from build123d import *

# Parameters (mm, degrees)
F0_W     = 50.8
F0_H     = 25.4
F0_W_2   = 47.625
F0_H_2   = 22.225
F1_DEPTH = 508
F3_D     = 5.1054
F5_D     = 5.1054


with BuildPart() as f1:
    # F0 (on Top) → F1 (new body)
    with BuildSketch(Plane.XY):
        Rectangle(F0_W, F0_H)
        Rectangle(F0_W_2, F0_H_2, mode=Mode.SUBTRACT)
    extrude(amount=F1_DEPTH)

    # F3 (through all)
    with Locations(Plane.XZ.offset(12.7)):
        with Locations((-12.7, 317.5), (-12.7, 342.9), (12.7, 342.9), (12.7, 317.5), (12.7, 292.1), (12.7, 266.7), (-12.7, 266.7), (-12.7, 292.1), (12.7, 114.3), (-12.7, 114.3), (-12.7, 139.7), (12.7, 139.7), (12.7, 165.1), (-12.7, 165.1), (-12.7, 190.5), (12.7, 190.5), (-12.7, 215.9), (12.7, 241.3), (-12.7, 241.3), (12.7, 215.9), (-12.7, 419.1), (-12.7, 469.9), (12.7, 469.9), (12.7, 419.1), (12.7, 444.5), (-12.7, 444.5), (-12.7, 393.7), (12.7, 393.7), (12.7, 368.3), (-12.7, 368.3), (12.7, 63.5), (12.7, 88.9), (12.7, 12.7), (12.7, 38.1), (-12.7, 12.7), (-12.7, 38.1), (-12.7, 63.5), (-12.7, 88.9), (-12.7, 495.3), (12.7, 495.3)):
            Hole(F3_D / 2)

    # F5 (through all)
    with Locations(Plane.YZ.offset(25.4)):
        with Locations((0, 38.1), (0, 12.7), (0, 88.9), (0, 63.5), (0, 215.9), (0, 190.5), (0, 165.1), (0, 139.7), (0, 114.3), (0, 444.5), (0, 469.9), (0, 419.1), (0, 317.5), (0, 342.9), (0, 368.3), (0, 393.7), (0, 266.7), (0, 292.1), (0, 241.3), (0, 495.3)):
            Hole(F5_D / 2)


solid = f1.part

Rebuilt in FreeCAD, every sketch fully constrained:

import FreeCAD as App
import Part
import Sketcher
Q = App.Units.Quantity


def add_polygon(sketch, points):
    """Adds a closed chain of lines whose ends are joined by coincident constraints."""
    first, n = sketch.GeometryCount, len(points)
    for a, b in zip(points, points[1:] + points[:1]):
        sketch.addGeometry(Part.LineSegment(App.Vector(*a, 0), App.Vector(*b, 0)), False)
    for i in range(n):
        sketch.addConstraint(Sketcher.Constraint("Coincident", first + i, 2, first + (i + 1) % n, 1))

doc = App.newDocument("Part")
params = doc.addObject("Spreadsheet::Sheet", "Params")
for row, (alias, value) in enumerate([
    ("sketch1_width", "2 in"),
    ("sketch1_height", "1 in"),
    ("sketch1_width2", "1.875 in"),
    ("sketch1_height2", "0.875 in"),
    ("pad1_length", "20 in"),
    ("sketch2_diameter", "0.201 in"),
    ("hole_diameter", "0.201 in"),
    ("sketch3_diameter", "0.201 in"),
    ("hole2_diameter", "0.201 in"),
], start=1):
    params.set(f"A{row}", alias)
    params.set(f"B{row}", "=" + value)
    params.setAlias(f"B{row}", alias)

body = doc.addObject("PartDesign::Body", "Body")

# Sketch on XY plane
sketch1 = body.newObject("Sketcher::SketchObject", "Sketch")
sketch1.AttachmentSupport = (doc.getObject("XY_Plane"), [""])
sketch1.MapMode = "FlatFace"
add_polygon(sketch1, [(-25, 13), (-25, -13), (25, -13), (25, 13)])  # lines 0-3
add_polygon(sketch1, [(24, -11), (-24, -11), (-24, 11), (24, 11)])  # lines 4-7
sketch1.addConstraint([
    Sketcher.Constraint("Vertical", 0),
    Sketcher.Constraint("Horizontal", 1),
    Sketcher.Constraint("Vertical", 2),
    Sketcher.Constraint("Horizontal", 3),
    Sketcher.Constraint("Horizontal", 4),
    Sketcher.Constraint("Vertical", 5),
    Sketcher.Constraint("Horizontal", 6),
    Sketcher.Constraint("Vertical", 7),
    Sketcher.Constraint("Symmetric", 0, 2, 2, 2, -1, 1),
    Sketcher.Constraint("Symmetric", 4, 2, 6, 2, -1, 1),
    Sketcher.Constraint("DistanceX", 1, 1, 1, 2, Q("2 in")),
    Sketcher.Constraint("DistanceY", 0, 2, 0, 1, Q("1 in")),
    Sketcher.Constraint("DistanceX", 4, 2, 4, 1, Q("1.875 in")),
    Sketcher.Constraint("DistanceY", 5, 1, 5, 2, Q("0.875 in")),
])
sketch1.setExpression("Constraints[18]", "Params.sketch1_width")
sketch1.setExpression("Constraints[19]", "Params.sketch1_height")
sketch1.setExpression("Constraints[20]", "Params.sketch1_width2")
sketch1.setExpression("Constraints[21]", "Params.sketch1_height2")
pad1 = body.newObject("PartDesign::Pad", "Pad")
pad1.Profile = sketch1
pad1.setExpression("Length", "Params.pad1_length")

# Sketch on XZ plane
sketch2 = body.newObject("Sketcher::SketchObject", "Sketch001")
sketch2.AttachmentSupport = (doc.getObject("XZ_Plane"), [""])
sketch2.MapMode = "FlatFace"
sketch2.AttachmentOffset = App.Placement(App.Vector(0, 0, 0.5 * 25.4), App.Rotation())
sketch2.addGeometry([
    Part.Circle(App.Vector(-12.7, 317.5, 0), App.Vector(0, 0, 1), 2.6),  # 0
    Part.Circle(App.Vector(-12.7, 342.9, 0), App.Vector(0, 0, 1), 2.6),  # 1
    Part.Circle(App.Vector(12.7, 342.9, 0), App.Vector(0, 0, 1), 2.6),  # 2
    Part.Circle(App.Vector(12.7, 317.5, 0), App.Vector(0, 0, 1), 2.6),  # 3
    Part.Circle(App.Vector(12.7, 292.1, 0), App.Vector(0, 0, 1), 2.6),  # 4
    Part.Circle(App.Vector(12.7, 266.7, 0), App.Vector(0, 0, 1), 2.6),  # 5
    Part.Circle(App.Vector(-12.7, 266.7, 0), App.Vector(0, 0, 1), 2.6),  # 6
    Part.Circle(App.Vector(-12.7, 292.1, 0), App.Vector(0, 0, 1), 2.6),  # 7
    Part.Circle(App.Vector(12.7, 114.3, 0), App.Vector(0, 0, 1), 2.6),  # 8
    Part.Circle(App.Vector(-12.7, 114.3, 0), App.Vector(0, 0, 1), 2.6),  # 9
    Part.Circle(App.Vector(-12.7, 139.7, 0), App.Vector(0, 0, 1), 2.6),  # 10
    Part.Circle(App.Vector(12.7, 139.7, 0), App.Vector(0, 0, 1), 2.6),  # 11
    Part.Circle(App.Vector(12.7, 165.1, 0), App.Vector(0, 0, 1), 2.6),  # 12
    Part.Circle(App.Vector(-12.7, 165.1, 0), App.Vector(0, 0, 1), 2.6),  # 13
    Part.Circle(App.Vector(-12.7, 190.5, 0), App.Vector(0, 0, 1), 2.6),  # 14
    Part.Circle(App.Vector(12.7, 190.5, 0), App.Vector(0, 0, 1), 2.6),  # 15
    Part.Circle(App.Vector(-12.7, 215.9, 0), App.Vector(0, 0, 1), 2.6),  # 16
    Part.Circle(App.Vector(12.7, 241.3, 0), App.Vector(0, 0, 1), 2.6),  # 17
    Part.Circle(App.Vector(-12.7, 241.3, 0), App.Vector(0, 0, 1), 2.6),  # 18
    Part.Circle(App.Vector(12.7, 215.9, 0), App.Vector(0, 0, 1), 2.6),  # 19
    Part.Circle(App.Vector(-12.7, 419.1, 0), App.Vector(0, 0, 1), 2.6),  # 20
    Part.Circle(App.Vector(-12.7, 469.9, 0), App.Vector(0, 0, 1), 2.6),  # 21
    Part.Circle(App.Vector(12.7, 469.9, 0), App.Vector(0, 0, 1), 2.6),  # 22
    Part.Circle(App.Vector(12.7, 419.1, 0), App.Vector(0, 0, 1), 2.6),  # 23
    Part.Circle(App.Vector(12.7, 444.5, 0), App.Vector(0, 0, 1), 2.6),  # 24
    Part.Circle(App.Vector(-12.7, 444.5, 0), App.Vector(0, 0, 1), 2.6),  # 25
    Part.Circle(App.Vector(-12.7, 393.7, 0), App.Vector(0, 0, 1), 2.6),  # 26
    Part.Circle(App.Vector(12.7, 393.7, 0), App.Vector(0, 0, 1), 2.6),  # 27
    Part.Circle(App.Vector(12.7, 368.3, 0), App.Vector(0, 0, 1), 2.6),  # 28
    Part.Circle(App.Vector(-12.7, 368.3, 0), App.Vector(0, 0, 1), 2.6),  # 29
    Part.Circle(App.Vector(12.7, 63.5, 0), App.Vector(0, 0, 1), 2.6),  # 30
    Part.Circle(App.Vector(12.7, 88.9, 0), App.Vector(0, 0, 1), 2.6),  # 31
    Part.Circle(App.Vector(12.7, 12.7, 0), App.Vector(0, 0, 1), 2.6),  # 32
    Part.Circle(App.Vector(12.7, 38.1, 0), App.Vector(0, 0, 1), 2.6),  # 33
    Part.Circle(App.Vector(-12.7, 12.7, 0), App.Vector(0, 0, 1), 2.6),  # 34
    Part.Circle(App.Vector(-12.7, 38.1, 0), App.Vector(0, 0, 1), 2.6),  # 35
    Part.Circle(App.Vector(-12.7, 63.5, 0), App.Vector(0, 0, 1), 2.6),  # 36
    Part.Circle(App.Vector(-12.7, 88.9, 0), App.Vector(0, 0, 1), 2.6),  # 37
    Part.Circle(App.Vector(-12.7, 495.3, 0), App.Vector(0, 0, 1), 2.6),  # 38
    Part.Circle(App.Vector(12.7, 495.3, 0), App.Vector(0, 0, 1), 2.6),  # 39
], False)
sketch2.addConstraint([
    Sketcher.Constraint("Equal", 0, 1),
    Sketcher.Constraint("Equal", 1, 2),
    Sketcher.Constraint("Equal", 2, 3),
    Sketcher.Constraint("Equal", 3, 4),
    Sketcher.Constraint("Equal", 4, 5),
    Sketcher.Constraint("Equal", 5, 6),
    Sketcher.Constraint("Equal", 6, 7),
    Sketcher.Constraint("Equal", 7, 8),
    Sketcher.Constraint("Equal", 8, 9),
    Sketcher.Constraint("Equal", 9, 10),
    Sketcher.Constraint("Equal", 10, 11),
    Sketcher.Constraint("Equal", 11, 12),
    Sketcher.Constraint("Equal", 12, 13),
    Sketcher.Constraint("Equal", 13, 14),
    Sketcher.Constraint("Equal", 14, 15),
    Sketcher.Constraint("Equal", 15, 16),
    Sketcher.Constraint("Equal", 16, 17),
    Sketcher.Constraint("Equal", 17, 18),
    Sketcher.Constraint("Equal", 18, 19),
    Sketcher.Constraint("Equal", 19, 20),
    Sketcher.Constraint("Equal", 20, 21),
    Sketcher.Constraint("Equal", 21, 22),
    Sketcher.Constraint("Equal", 22, 23),
    Sketcher.Constraint("Equal", 23, 24),
    Sketcher.Constraint("Equal", 24, 25),
    Sketcher.Constraint("Equal", 25, 26),
    Sketcher.Constraint("Equal", 26, 27),
    Sketcher.Constraint("Equal", 27, 28),
    Sketcher.Constraint("Equal", 28, 29),
    Sketcher.Constraint("Equal", 29, 30),
    Sketcher.Constraint("Equal", 30, 31),
    Sketcher.Constraint("Equal", 31, 32),
    Sketcher.Constraint("Equal", 32, 33),
    Sketcher.Constraint("Equal", 33, 34),
    Sketcher.Constraint("Equal", 34, 35),
    Sketcher.Constraint("Equal", 35, 36),
    Sketcher.Constraint("Equal", 36, 37),
    Sketcher.Constraint("Equal", 37, 38),
    Sketcher.Constraint("Equal", 38, 39),
    Sketcher.Constraint("Symmetric", 1, 3, 2, 3, -2),
    Sketcher.Constraint("Symmetric", 0, 3, 3, 3, -2),
    Sketcher.Constraint("Symmetric", 5, 3, 6, 3, -2),
    Sketcher.Constraint("Symmetric", 4, 3, 7, 3, -2),
    Sketcher.Constraint("Symmetric", 8, 3, 9, 3, -2),
    Sketcher.Constraint("Symmetric", 10, 3, 11, 3, -2),
    Sketcher.Constraint("Symmetric", 12, 3, 13, 3, -2),
    Sketcher.Constraint("Symmetric", 14, 3, 15, 3, -2),
    Sketcher.Constraint("Symmetric", 17, 3, 18, 3, -2),
    Sketcher.Constraint("Symmetric", 16, 3, 19, 3, -2),
    Sketcher.Constraint("Symmetric", 21, 3, 22, 3, -2),
    Sketcher.Constraint("Symmetric", 20, 3, 23, 3, -2),
    Sketcher.Constraint("Symmetric", 24, 3, 25, 3, -2),
    Sketcher.Constraint("Symmetric", 26, 3, 27, 3, -2),
    Sketcher.Constraint("Symmetric", 28, 3, 29, 3, -2),
    Sketcher.Constraint("Symmetric", 32, 3, 34, 3, -2),
    Sketcher.Constraint("Symmetric", 33, 3, 35, 3, -2),
    Sketcher.Constraint("Symmetric", 30, 3, 36, 3, -2),
    Sketcher.Constraint("Symmetric", 31, 3, 37, 3, -2),
    Sketcher.Constraint("Symmetric", 38, 3, 39, 3, -2),
    Sketcher.Constraint("Vertical", 0, 3, 1, 3),
    Sketcher.Constraint("Vertical", 3, 3, 4, 3),
    Sketcher.Constraint("Vertical", 4, 3, 5, 3),
    Sketcher.Constraint("Vertical", 5, 3, 8, 3),
    Sketcher.Constraint("Vertical", 9, 3, 10, 3),
    Sketcher.Constraint("Vertical", 11, 3, 12, 3),
    Sketcher.Constraint("Vertical", 13, 3, 14, 3),
    Sketcher.Constraint("Vertical", 14, 3, 16, 3),
    Sketcher.Constraint("Vertical", 15, 3, 17, 3),
    Sketcher.Constraint("Vertical", 18, 3, 20, 3),
    Sketcher.Constraint("Vertical", 20, 3, 21, 3),
    Sketcher.Constraint("Vertical", 23, 3, 24, 3),
    Sketcher.Constraint("Vertical", 25, 3, 26, 3),
    Sketcher.Constraint("Vertical", 27, 3, 28, 3),
    Sketcher.Constraint("Vertical", 28, 3, 30, 3),
    Sketcher.Constraint("Vertical", 30, 3, 31, 3),
    Sketcher.Constraint("Vertical", 31, 3, 32, 3),
    Sketcher.Constraint("Vertical", 32, 3, 33, 3),
    Sketcher.Constraint("Vertical", 37, 3, 38, 3),
    Sketcher.Constraint("Diameter", 0, Q("0.201 in")),
    Sketcher.Constraint("DistanceY", 0, 3, 1, 3, Q("1 in")),
    Sketcher.Constraint("DistanceX", 1, 3, 2, 3, Q("1 in")),
    Sketcher.Constraint("DistanceY", 4, 3, 3, 3, Q("1 in")),
    Sketcher.Constraint("DistanceY", 5, 3, 4, 3, Q("1 in")),
    Sketcher.Constraint("DistanceY", 8, 3, 5, 3, Q("6 in")),
    Sketcher.Constraint("DistanceY", 9, 3, 10, 3, Q("1 in")),
    Sketcher.Constraint("DistanceY", 11, 3, 12, 3, Q("1 in")),
    Sketcher.Constraint("DistanceY", 13, 3, 14, 3, Q("1 in")),
    Sketcher.Constraint("DistanceY", 14, 3, 16, 3, Q("1 in")),
    Sketcher.Constraint("DistanceY", 17, 3, 5, 3, Q("1 in")),
    Sketcher.Constraint("DistanceY", 1, 3, 20, 3, Q("3 in")),
    Sketcher.Constraint("DistanceY", 20, 3, 21, 3, Q("2 in")),
    Sketcher.Constraint("DistanceY", 24, 3, 22, 3, Q("1 in")),
    Sketcher.Constraint("DistanceY", 26, 3, 20, 3, Q("1 in")),
    Sketcher.Constraint("DistanceY", 28, 3, 27, 3, Q("1 in")),
    Sketcher.Constraint("DistanceY", 30, 3, 8, 3, Q("2 in")),
    Sketcher.Constraint("DistanceY", 31, 3, 8, 3, Q("1 in")),
    Sketcher.Constraint("DistanceY", 32, 3, 30, 3, Q("2 in")),
    Sketcher.Constraint("DistanceY", 33, 3, 30, 3, Q("1 in")),
    Sketcher.Constraint("DistanceY", 21, 3, 38, 3, Q("1 in")),
    Sketcher.Constraint("DistanceY", -1, 1, 0, 3, Q("12.5 in")),
])
sketch2.setExpression("Constraints[78]", "Params.sketch2_diameter")
doc.recompute()
hole = body.newObject("PartDesign::Hole", "Hole")
hole.Profile = sketch2
hole.ThreadType = "None"
hole.setExpression("Diameter", "Params.hole_diameter")
hole.DepthType = "ThroughAll"

# Sketch on YZ plane
sketch3 = body.newObject("Sketcher::SketchObject", "Sketch002")
sketch3.AttachmentSupport = (doc.getObject("YZ_Plane"), [""])
sketch3.MapMode = "FlatFace"
sketch3.AttachmentOffset = App.Placement(App.Vector(0, 0, 1 * 25.4), App.Rotation())
sketch3.addGeometry([
    Part.Circle(App.Vector(0, 38.1, 0), App.Vector(0, 0, 1), 2.6),  # 0
    Part.Circle(App.Vector(0, 12.7, 0), App.Vector(0, 0, 1), 2.6),  # 1
    Part.Circle(App.Vector(0, 88.9, 0), App.Vector(0, 0, 1), 2.6),  # 2
    Part.Circle(App.Vector(0, 63.5, 0), App.Vector(0, 0, 1), 2.6),  # 3
    Part.Circle(App.Vector(0, 215.9, 0), App.Vector(0, 0, 1), 2.6),  # 4
    Part.Circle(App.Vector(0, 190.5, 0), App.Vector(0, 0, 1), 2.6),  # 5
    Part.Circle(App.Vector(0, 165.1, 0), App.Vector(0, 0, 1), 2.6),  # 6
    Part.Circle(App.Vector(0, 139.7, 0), App.Vector(0, 0, 1), 2.6),  # 7
    Part.Circle(App.Vector(0, 114.3, 0), App.Vector(0, 0, 1), 2.6),  # 8
    Part.Circle(App.Vector(0, 444.5, 0), App.Vector(0, 0, 1), 2.6),  # 9
    Part.Circle(App.Vector(0, 469.9, 0), App.Vector(0, 0, 1), 2.6),  # 10
    Part.Circle(App.Vector(0, 419.1, 0), App.Vector(0, 0, 1), 2.6),  # 11
    Part.Circle(App.Vector(0, 317.5, 0), App.Vector(0, 0, 1), 2.6),  # 12
    Part.Circle(App.Vector(0, 342.9, 0), App.Vector(0, 0, 1), 2.6),  # 13
    Part.Circle(App.Vector(0, 368.3, 0), App.Vector(0, 0, 1), 2.6),  # 14
    Part.Circle(App.Vector(0, 393.7, 0), App.Vector(0, 0, 1), 2.6),  # 15
    Part.Circle(App.Vector(0, 266.7, 0), App.Vector(0, 0, 1), 2.6),  # 16
    Part.Circle(App.Vector(0, 292.1, 0), App.Vector(0, 0, 1), 2.6),  # 17
    Part.Circle(App.Vector(0, 241.3, 0), App.Vector(0, 0, 1), 2.6),  # 18
    Part.Circle(App.Vector(0, 495.3, 0), App.Vector(0, 0, 1), 2.6),  # 19
], False)
sketch3.addConstraint([
    Sketcher.Constraint("Equal", 0, 1),
    Sketcher.Constraint("Equal", 1, 2),
    Sketcher.Constraint("Equal", 2, 3),
    Sketcher.Constraint("Equal", 3, 4),
    Sketcher.Constraint("Equal", 4, 5),
    Sketcher.Constraint("Equal", 5, 6),
    Sketcher.Constraint("Equal", 6, 7),
    Sketcher.Constraint("Equal", 7, 8),
    Sketcher.Constraint("Equal", 8, 9),
    Sketcher.Constraint("Equal", 9, 10),
    Sketcher.Constraint("Equal", 10, 11),
    Sketcher.Constraint("Equal", 11, 12),
    Sketcher.Constraint("Equal", 12, 13),
    Sketcher.Constraint("Equal", 13, 14),
    Sketcher.Constraint("Equal", 14, 15),
    Sketcher.Constraint("Equal", 15, 16),
    Sketcher.Constraint("Equal", 16, 17),
    Sketcher.Constraint("Equal", 17, 18),
    Sketcher.Constraint("Equal", 18, 19),
    Sketcher.Constraint("PointOnObject", 0, 3, -2),
    Sketcher.Constraint("PointOnObject", 1, 3, -2),
    Sketcher.Constraint("PointOnObject", 2, 3, -2),
    Sketcher.Constraint("PointOnObject", 3, 3, -2),
    Sketcher.Constraint("PointOnObject", 4, 3, -2),
    Sketcher.Constraint("PointOnObject", 5, 3, -2),
    Sketcher.Constraint("PointOnObject", 6, 3, -2),
    Sketcher.Constraint("PointOnObject", 7, 3, -2),
    Sketcher.Constraint("PointOnObject", 8, 3, -2),
    Sketcher.Constraint("PointOnObject", 9, 3, -2),
    Sketcher.Constraint("PointOnObject", 10, 3, -2),
    Sketcher.Constraint("PointOnObject", 11, 3, -2),
    Sketcher.Constraint("PointOnObject", 12, 3, -2),
    Sketcher.Constraint("PointOnObject", 13, 3, -2),
    Sketcher.Constraint("PointOnObject", 14, 3, -2),
    Sketcher.Constraint("PointOnObject", 15, 3, -2),
    Sketcher.Constraint("PointOnObject", 16, 3, -2),
    Sketcher.Constraint("PointOnObject", 17, 3, -2),
    Sketcher.Constraint("PointOnObject", 18, 3, -2),
    Sketcher.Constraint("PointOnObject", 19, 3, -2),
    Sketcher.Constraint("Diameter", 0, Q("0.201 in")),
    Sketcher.Constraint("DistanceY", 1, 3, 0, 3, Q("1 in")),
    Sketcher.Constraint("DistanceY", 0, 3, 2, 3, Q("2 in")),
    Sketcher.Constraint("DistanceY", 0, 3, 3, 3, Q("1 in")),
    Sketcher.Constraint("DistanceY", 2, 3, 4, 3, Q("5 in")),
    Sketcher.Constraint("DistanceY", 5, 3, 4, 3, Q("1 in")),
    Sketcher.Constraint("DistanceY", 6, 3, 5, 3, Q("1 in")),
    Sketcher.Constraint("DistanceY", 7, 3, 6, 3, Q("1 in")),
    Sketcher.Constraint("DistanceY", 2, 3, 8, 3, Q("1 in")),
    Sketcher.Constraint("DistanceY", 4, 3, 9, 3, Q("9 in")),
    Sketcher.Constraint("DistanceY", 9, 3, 10, 3, Q("1 in")),
    Sketcher.Constraint("DistanceY", 11, 3, 9, 3, Q("1 in")),
    Sketcher.Constraint("DistanceY", 4, 3, 12, 3, Q("4 in")),
    Sketcher.Constraint("DistanceY", 12, 3, 13, 3, Q("1 in")),
    Sketcher.Constraint("DistanceY", 13, 3, 14, 3, Q("1 in")),
    Sketcher.Constraint("DistanceY", 14, 3, 15, 3, Q("1 in")),
    Sketcher.Constraint("DistanceY", 4, 3, 16, 3, Q("2 in")),
    Sketcher.Constraint("DistanceY", 17, 3, 12, 3, Q("1 in")),
    Sketcher.Constraint("DistanceY", 18, 3, 16, 3, Q("1 in")),
    Sketcher.Constraint("DistanceY", 10, 3, 19, 3, Q("1 in")),
    Sketcher.Constraint("DistanceY", -1, 1, 0, 3, Q("1.5 in")),
])
sketch3.setExpression("Constraints[39]", "Params.sketch3_diameter")
doc.recompute()
hole2 = body.newObject("PartDesign::Hole", "Hole001")
hole2.Profile = sketch3
hole2.ThreadType = "None"
hole2.setExpression("Diameter", "Params.hole2_diameter")
hole2.DepthType = "ThroughAll"

doc.recompute()
